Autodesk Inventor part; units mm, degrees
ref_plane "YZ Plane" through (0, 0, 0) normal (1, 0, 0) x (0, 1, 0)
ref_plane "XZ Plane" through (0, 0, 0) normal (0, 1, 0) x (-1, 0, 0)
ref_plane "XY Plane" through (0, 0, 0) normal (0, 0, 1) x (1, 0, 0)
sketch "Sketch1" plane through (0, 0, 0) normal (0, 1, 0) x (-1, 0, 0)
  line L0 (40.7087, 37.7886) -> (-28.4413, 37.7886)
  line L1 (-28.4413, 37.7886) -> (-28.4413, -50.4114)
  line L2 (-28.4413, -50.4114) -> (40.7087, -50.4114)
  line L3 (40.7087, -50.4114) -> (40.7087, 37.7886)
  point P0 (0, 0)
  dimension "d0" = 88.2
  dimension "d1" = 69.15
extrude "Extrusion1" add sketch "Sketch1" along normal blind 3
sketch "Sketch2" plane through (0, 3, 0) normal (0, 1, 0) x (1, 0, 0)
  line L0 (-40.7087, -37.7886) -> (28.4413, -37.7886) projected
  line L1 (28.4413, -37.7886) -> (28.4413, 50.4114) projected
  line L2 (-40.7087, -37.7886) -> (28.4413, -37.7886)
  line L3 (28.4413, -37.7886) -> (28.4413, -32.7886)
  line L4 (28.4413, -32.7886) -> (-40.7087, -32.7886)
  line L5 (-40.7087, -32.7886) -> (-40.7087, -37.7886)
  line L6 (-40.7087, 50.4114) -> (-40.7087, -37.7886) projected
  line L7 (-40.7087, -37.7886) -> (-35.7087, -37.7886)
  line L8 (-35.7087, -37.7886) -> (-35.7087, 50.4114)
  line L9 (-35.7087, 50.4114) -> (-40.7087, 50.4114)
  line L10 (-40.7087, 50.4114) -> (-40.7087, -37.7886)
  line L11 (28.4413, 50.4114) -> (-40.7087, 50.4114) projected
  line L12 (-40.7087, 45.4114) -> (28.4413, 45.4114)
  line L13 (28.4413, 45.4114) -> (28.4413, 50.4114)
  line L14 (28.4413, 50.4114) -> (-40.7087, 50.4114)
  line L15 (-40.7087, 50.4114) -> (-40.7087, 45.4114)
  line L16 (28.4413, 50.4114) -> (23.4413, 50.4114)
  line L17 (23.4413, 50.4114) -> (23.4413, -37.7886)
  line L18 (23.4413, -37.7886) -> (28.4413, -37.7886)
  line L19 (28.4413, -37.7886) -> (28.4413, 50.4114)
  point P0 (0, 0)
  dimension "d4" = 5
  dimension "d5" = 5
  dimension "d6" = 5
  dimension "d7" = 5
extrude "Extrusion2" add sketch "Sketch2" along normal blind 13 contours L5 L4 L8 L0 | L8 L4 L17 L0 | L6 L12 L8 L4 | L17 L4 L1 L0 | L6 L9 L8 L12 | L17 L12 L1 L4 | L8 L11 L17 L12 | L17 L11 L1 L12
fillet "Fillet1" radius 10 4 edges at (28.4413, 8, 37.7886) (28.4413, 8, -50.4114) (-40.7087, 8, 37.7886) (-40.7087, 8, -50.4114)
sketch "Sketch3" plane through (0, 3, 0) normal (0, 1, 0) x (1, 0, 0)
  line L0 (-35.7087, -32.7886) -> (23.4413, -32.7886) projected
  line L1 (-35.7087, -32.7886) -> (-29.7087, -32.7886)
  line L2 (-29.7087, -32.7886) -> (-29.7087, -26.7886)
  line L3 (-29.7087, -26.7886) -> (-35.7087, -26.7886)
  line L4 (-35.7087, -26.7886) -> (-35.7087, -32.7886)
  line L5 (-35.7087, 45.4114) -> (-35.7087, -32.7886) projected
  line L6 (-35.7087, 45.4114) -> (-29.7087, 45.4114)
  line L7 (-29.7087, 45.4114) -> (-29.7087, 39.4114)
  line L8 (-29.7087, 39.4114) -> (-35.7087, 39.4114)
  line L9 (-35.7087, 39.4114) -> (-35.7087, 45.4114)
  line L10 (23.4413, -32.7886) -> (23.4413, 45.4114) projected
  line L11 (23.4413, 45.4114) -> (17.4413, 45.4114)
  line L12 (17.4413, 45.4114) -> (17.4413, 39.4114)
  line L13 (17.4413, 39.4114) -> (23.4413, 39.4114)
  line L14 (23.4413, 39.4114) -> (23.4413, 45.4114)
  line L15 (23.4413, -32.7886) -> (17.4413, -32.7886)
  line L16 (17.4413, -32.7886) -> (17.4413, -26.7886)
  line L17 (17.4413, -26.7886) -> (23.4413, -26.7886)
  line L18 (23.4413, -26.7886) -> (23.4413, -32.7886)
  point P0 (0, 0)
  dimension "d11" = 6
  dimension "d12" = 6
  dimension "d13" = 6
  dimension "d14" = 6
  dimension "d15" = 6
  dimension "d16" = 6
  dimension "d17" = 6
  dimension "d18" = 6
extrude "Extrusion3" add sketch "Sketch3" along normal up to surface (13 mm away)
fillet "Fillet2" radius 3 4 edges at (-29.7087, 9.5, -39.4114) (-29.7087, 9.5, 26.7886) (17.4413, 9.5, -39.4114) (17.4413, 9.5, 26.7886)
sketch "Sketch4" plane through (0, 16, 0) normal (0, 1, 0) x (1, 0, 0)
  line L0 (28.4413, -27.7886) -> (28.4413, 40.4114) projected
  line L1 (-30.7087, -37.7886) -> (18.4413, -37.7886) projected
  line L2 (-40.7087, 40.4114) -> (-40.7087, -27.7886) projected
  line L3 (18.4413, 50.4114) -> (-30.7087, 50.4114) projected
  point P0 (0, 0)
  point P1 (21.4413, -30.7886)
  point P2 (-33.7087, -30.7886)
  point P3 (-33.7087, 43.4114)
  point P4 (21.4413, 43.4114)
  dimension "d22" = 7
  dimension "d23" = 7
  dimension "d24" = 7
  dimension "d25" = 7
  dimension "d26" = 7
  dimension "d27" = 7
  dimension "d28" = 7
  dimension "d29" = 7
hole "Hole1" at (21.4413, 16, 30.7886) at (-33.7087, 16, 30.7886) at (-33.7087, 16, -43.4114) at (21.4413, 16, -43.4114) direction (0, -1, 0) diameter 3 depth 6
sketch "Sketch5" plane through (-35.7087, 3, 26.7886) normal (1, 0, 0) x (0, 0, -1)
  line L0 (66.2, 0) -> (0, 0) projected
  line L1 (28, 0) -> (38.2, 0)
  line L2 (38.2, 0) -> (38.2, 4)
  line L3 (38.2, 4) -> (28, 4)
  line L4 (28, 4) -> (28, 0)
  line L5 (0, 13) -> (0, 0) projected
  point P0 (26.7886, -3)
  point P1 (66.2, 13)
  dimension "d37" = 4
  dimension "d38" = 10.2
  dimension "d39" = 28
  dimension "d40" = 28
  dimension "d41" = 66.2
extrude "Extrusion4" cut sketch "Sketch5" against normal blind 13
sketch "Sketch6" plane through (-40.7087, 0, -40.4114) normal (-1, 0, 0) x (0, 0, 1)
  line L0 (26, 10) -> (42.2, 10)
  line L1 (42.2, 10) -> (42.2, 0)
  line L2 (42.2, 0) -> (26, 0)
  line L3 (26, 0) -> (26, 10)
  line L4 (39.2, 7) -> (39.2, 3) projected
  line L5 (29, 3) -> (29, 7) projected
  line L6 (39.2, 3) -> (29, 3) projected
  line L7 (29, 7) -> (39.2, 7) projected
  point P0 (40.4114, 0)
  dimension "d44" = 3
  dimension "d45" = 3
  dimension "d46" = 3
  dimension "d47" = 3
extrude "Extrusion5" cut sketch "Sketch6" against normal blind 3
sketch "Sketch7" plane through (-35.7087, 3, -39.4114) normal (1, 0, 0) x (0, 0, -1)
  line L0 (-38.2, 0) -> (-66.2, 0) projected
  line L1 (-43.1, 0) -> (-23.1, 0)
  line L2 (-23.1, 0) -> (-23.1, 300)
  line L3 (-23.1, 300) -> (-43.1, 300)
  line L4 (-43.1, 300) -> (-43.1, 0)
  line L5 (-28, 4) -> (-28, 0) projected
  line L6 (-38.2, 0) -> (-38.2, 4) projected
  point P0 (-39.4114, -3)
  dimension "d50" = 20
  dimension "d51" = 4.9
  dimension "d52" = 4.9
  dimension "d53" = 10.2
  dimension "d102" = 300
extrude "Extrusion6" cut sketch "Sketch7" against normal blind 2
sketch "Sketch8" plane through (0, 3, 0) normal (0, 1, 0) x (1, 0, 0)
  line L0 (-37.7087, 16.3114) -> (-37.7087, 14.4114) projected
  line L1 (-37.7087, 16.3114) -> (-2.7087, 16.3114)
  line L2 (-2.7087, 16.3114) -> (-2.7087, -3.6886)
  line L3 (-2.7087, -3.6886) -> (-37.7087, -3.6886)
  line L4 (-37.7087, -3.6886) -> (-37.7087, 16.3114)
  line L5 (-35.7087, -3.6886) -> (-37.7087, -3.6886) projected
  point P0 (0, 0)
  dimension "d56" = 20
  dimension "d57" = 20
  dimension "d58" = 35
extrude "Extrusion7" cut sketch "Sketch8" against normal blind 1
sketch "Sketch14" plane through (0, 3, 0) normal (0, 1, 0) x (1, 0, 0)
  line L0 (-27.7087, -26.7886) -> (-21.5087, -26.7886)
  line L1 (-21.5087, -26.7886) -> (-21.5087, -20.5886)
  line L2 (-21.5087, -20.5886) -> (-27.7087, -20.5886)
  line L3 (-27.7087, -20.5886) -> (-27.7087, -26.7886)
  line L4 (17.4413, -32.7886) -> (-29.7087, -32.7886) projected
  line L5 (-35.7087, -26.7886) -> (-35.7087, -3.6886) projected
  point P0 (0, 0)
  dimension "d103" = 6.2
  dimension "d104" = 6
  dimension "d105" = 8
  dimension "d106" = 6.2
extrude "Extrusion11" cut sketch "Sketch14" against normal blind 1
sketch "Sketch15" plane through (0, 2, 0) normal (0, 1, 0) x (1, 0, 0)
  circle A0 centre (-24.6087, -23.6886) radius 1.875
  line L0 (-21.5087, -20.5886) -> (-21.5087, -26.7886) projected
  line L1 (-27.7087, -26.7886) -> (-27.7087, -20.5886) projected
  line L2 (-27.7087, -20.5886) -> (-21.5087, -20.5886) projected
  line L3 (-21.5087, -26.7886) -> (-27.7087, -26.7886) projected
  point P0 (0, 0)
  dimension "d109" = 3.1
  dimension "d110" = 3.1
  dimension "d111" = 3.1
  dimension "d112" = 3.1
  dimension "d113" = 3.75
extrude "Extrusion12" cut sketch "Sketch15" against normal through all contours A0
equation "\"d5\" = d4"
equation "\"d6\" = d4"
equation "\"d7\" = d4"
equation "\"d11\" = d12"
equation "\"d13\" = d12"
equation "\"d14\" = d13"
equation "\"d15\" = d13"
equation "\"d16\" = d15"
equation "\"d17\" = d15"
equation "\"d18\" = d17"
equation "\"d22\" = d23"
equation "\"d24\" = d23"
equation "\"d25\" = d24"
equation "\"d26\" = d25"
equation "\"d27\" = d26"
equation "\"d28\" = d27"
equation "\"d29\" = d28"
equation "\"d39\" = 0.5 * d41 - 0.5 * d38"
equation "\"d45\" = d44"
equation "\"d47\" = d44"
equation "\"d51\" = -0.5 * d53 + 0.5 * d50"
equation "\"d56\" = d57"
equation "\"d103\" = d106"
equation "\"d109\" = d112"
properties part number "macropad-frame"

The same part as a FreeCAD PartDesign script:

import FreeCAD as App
import Part
import Sketcher
from FreeCAD import Vector
Q = App.Units.Quantity


def edges_at(feature, points):
    """Names of the edges that pass closest to the given points."""
    edges = feature.Shape.Edges
    near = lambda p: min(range(len(edges)), key=lambda i: edges[i].distToShape(Part.Vertex(*p))[0])
    return sorted({f"Edge{near(p) + 1}" for p in points})


def add_polygon(sketch, points):
    """Adds a closed chain of lines whose ends are joined by coincident constraints."""
    first, n = sketch.GeometryCount, len(points)
    for a, b in zip(points, points[1:] + points[:1]):
        sketch.addGeometry(Part.LineSegment(App.Vector(*a, 0), App.Vector(*b, 0)), False)
    for i in range(n):
        sketch.addConstraint(Sketcher.Constraint("Coincident", first + i, 2, first + (i + 1) % n, 1))

doc = App.newDocument("Part")
body = doc.addObject("PartDesign::Body", "Body")

sketch1 = doc.addObject("Sketcher::SketchObject", "Sketch")
body.addObject(sketch1)
sketch1.AttachmentSupport = (doc.XZ_Plane, [""])
sketch1.MapMode = "FlatFace"
add_polygon(sketch1, [(-41, -50), (-41, 38), (28, 38), (28, -50)])
sketch1.addConstraint([
    Sketcher.Constraint("Vertical", 0),
    Sketcher.Constraint("Horizontal", 1),
    Sketcher.Constraint("Vertical", 2),
    Sketcher.Constraint("Horizontal", 3),
    Sketcher.Constraint("DistanceY", 0, 1, 0, 2, Q("88.2 mm")),
    Sketcher.Constraint("DistanceX", 1, 1, 1, 2, Q("69.15 mm")),
    Sketcher.Constraint("DistanceX", 0, 2, -1, 1, Q("40.7087 mm")),
    Sketcher.Constraint("DistanceY", -1, 1, 0, 2, Q("37.7886 mm")),
])
pad1 = doc.addObject("PartDesign::Pad", "Pad")
body.addObject(pad1)
pad1.Profile = sketch1
pad1.Length = 3
pad1.Reversed = True

sketch2 = doc.addObject("Sketcher::SketchObject", "Sketch001")
body.addObject(sketch2)
sketch2.AttachmentSupport = (doc.XZ_Plane, [""])
sketch2.MapMode = "FlatFace"
sketch2.AttachmentOffset = App.Placement(Vector(0, 0, -3), App.Rotation())
add_polygon(sketch2, [(-41, 38), (28, 38), (28, -50), (-41, -50)])
add_polygon(sketch2, [(-36, 33), (-36, -45), (23, -45), (23, 33)])
sketch2.addConstraint([
    Sketcher.Constraint("Horizontal", 0),
    Sketcher.Constraint("Vertical", 1),
    Sketcher.Constraint("Horizontal", 2),
    Sketcher.Constraint("Vertical", 3),
    Sketcher.Constraint("Vertical", 4),
    Sketcher.Constraint("Horizontal", 5),
    Sketcher.Constraint("Vertical", 6),
    Sketcher.Constraint("Horizontal", 7),
    Sketcher.Constraint("DistanceX", 2, 2, 4, 2, Q("5 mm")),
    Sketcher.Constraint("DistanceY", 2, 2, 4, 2, Q("5 mm")),
    Sketcher.Constraint("DistanceX", 5, 2, 1, 2, Q("5 mm")),
    Sketcher.Constraint("DistanceY", 6, 2, 0, 2, Q("5 mm")),
    Sketcher.Constraint("DistanceY", 1, 2, 1, 1, Q("88.2 mm")),
    Sketcher.Constraint("DistanceX", 0, 1, 0, 2, Q("69.15 mm")),
    Sketcher.Constraint("DistanceX", -1, 1, 0, 2, Q("28.4413 mm")),
    Sketcher.Constraint("DistanceY", -1, 1, 0, 2, Q("37.7886 mm")),
])
pad2 = doc.addObject("PartDesign::Pad", "Pad001")
body.addObject(pad2)
pad2.Profile = sketch2
pad2.Length = 13
pad2.Reversed = True
doc.recompute()

fillet = doc.addObject("PartDesign::Fillet", "Fillet")
body.addObject(fillet)
fillet.Base = (pad2, edges_at(pad2, [
    (28.441, 8, 37.789),
    (28.441, 8, -50.411),
    (-40.709, 8, 37.789),
    (-40.709, 8, -50.411),
]))
fillet.Radius = 10

sketch3 = doc.addObject("Sketcher::SketchObject", "Sketch002")
body.addObject(sketch3)
sketch3.AttachmentSupport = (doc.XZ_Plane, [""])
sketch3.MapMode = "FlatFace"
sketch3.AttachmentOffset = App.Placement(Vector(0, 0, -3), App.Rotation())
add_polygon(sketch3, [(-36, 27), (-36, 33), (-30, 33), (-30, 27)])
add_polygon(sketch3, [(-36, -45), (-36, -39), (-30, -39), (-30, -45)])
add_polygon(sketch3, [(17, -39), (23, -39), (23, -45), (17, -45)])
add_polygon(sketch3, [(17, 27), (17, 33), (23, 33), (23, 27)])
sketch3.addConstraint([
    Sketcher.Constraint("Vertical", 0),
    Sketcher.Constraint("Horizontal", 1),
    Sketcher.Constraint("Vertical", 2),
    Sketcher.Constraint("Horizontal", 3),
    Sketcher.Constraint("Vertical", 4),
    Sketcher.Constraint("Horizontal", 5),
    Sketcher.Constraint("Vertical", 6),
    Sketcher.Constraint("Horizontal", 7),
    Sketcher.Constraint("Horizontal", 8),
    Sketcher.Constraint("Vertical", 9),
    Sketcher.Constraint("Horizontal", 10),
    Sketcher.Constraint("Vertical", 11),
    Sketcher.Constraint("Vertical", 12),
    Sketcher.Constraint("Horizontal", 13),
    Sketcher.Constraint("Vertical", 14),
    Sketcher.Constraint("Horizontal", 15),
    Sketcher.Constraint("Horizontal", 5, 2, 8, 2),
    Sketcher.Constraint("Horizontal", 7, 2, 9, 2),
    Sketcher.Constraint("Horizontal", 1, 2, 12, 2),
    Sketcher.Constraint("Horizontal", 3, 2, 14, 2),
    Sketcher.Constraint("Vertical", 3, 2, 4, 2),
    Sketcher.Constraint("Vertical", 2, 2, 5, 2),
    Sketcher.Constraint("Vertical", 11, 2, 12, 2),
    Sketcher.Constraint("Vertical", 9, 2, 13, 2),
    Sketcher.Constraint("Equal", 7, 8),
    Sketcher.Constraint("Equal", 15, 0),
    Sketcher.Constraint("Equal", 2, 4),
    Sketcher.Constraint("DistanceX", 1, 1, 1, 2, Q("6 mm")),
    Sketcher.Constraint("DistanceY", 4, 2, 3, 2, Q("66.2 mm")),
    Sketcher.Constraint("DistanceX", 5, 2, 8, 2, Q("53.15 mm")),
    Sketcher.Constraint("DistanceX", 0, 2, -1, 1, Q("35.7087 mm")),
    Sketcher.Constraint("DistanceY", -1, 1, 0, 2, Q("32.7886 mm")),
])
pad3 = doc.addObject("PartDesign::Pad", "Pad002")
body.addObject(pad3)
pad3.Profile = sketch3
pad3.Length = 13
pad3.Reversed = True
doc.recompute()

fillet2 = doc.addObject("PartDesign::Fillet", "Fillet001")
body.addObject(fillet2)
fillet2.Base = (pad3, edges_at(pad3, [
    (-29.709, 9.5, -39.411),
    (-29.709, 9.5, 26.789),
    (17.441, 9.5, -39.411),
    (17.441, 9.5, 26.789),
]))
fillet2.Radius = 3

sketch4 = doc.addObject("Sketcher::SketchObject", "Sketch003")
body.addObject(sketch4)
sketch4.AttachmentSupport = (doc.XZ_Plane, [""])
sketch4.MapMode = "FlatFace"
sketch4.AttachmentOffset = App.Placement(Vector(0, 0, -16), App.Rotation())
sketch4.addGeometry([
    Part.Circle(Vector(21.4, 30.8, 0), Vector(0, 0, 1), 1.5),
    Part.Circle(Vector(-33.7, 30.8, 0), Vector(0, 0, 1), 1.5),
    Part.Circle(Vector(-33.7, -43.4, 0), Vector(0, 0, 1), 1.5),
    Part.Circle(Vector(21.4, -43.4, 0), Vector(0, 0, 1), 1.5),
], False)
sketch4.addConstraint([
    Sketcher.Constraint("Equal", 0, 1),
    Sketcher.Constraint("Equal", 1, 2),
    Sketcher.Constraint("Equal", 2, 3),
    Sketcher.Constraint("Horizontal", 0, 3, 1, 3),
    Sketcher.Constraint("Horizontal", 2, 3, 3, 3),
    Sketcher.Constraint("Vertical", 1, 3, 2, 3),
    Sketcher.Constraint("Vertical", 0, 3, 3, 3),
    Sketcher.Constraint("Diameter", 0, Q("3 mm")),
    Sketcher.Constraint("DistanceY", 2, 3, 1, 3, Q("74.2 mm")),
    Sketcher.Constraint("DistanceX", 1, 3, 0, 3, Q("55.15 mm")),
    Sketcher.Constraint("DistanceX", -1, 1, 0, 3, Q("21.4413 mm")),
    Sketcher.Constraint("DistanceY", -1, 1, 0, 3, Q("30.7886 mm")),
])
doc.recompute()
hole = doc.addObject("PartDesign::Hole", "Hole")
body.addObject(hole)
hole.Profile = sketch4
hole.ThreadType = "None"
hole.Diameter = 3
hole.DepthType = "Dimension"
hole.Depth = 6
hole.DrillPoint = "Flat"
hole.Reversed = True

sketch5 = doc.addObject("Sketcher::SketchObject", "Sketch004")
body.addObject(sketch5)
sketch5.AttachmentSupport = (doc.YZ_Plane, [""])
sketch5.MapMode = "FlatFace"
sketch5.AttachmentOffset = App.Placement(Vector(0, 0, -35.7087), App.Rotation())
add_polygon(sketch5, [(3, -1.2), (3, -11.4), (7, -11.4), (7, -1.2)])
sketch5.addConstraint([
    Sketcher.Constraint("Vertical", 0),
    Sketcher.Constraint("Horizontal", 1),
    Sketcher.Constraint("Vertical", 2),
    Sketcher.Constraint("Horizontal", 3),
    Sketcher.Constraint("DistanceX", 1, 1, 1, 2, Q("4 mm")),
    Sketcher.Constraint("DistanceY", 0, 2, 0, 1, Q("10.2 mm")),
    Sketcher.Constraint("DistanceX", -1, 1, 0, 2, Q("3 mm")),
    Sketcher.Constraint("DistanceY", 0, 2, -1, 1, Q("11.4114 mm")),
])
pocket1 = doc.addObject("PartDesign::Pocket", "Pocket")
body.addObject(pocket1)
pocket1.Profile = sketch5
pocket1.Length = 13

sketch6 = doc.addObject("Sketcher::SketchObject", "Sketch005")
body.addObject(sketch6)
sketch6.AttachmentSupport = (doc.YZ_Plane, [""])
sketch6.MapMode = "FlatFace"
sketch6.AttachmentOffset = App.Placement(Vector(0, 0, -40.7087), App.Rotation())
add_polygon(sketch6, [(10, 1.8), (10, -14.4), (0, -14.4), (0, 1.8)])
add_polygon(sketch6, [(7, -11.4), (7, -1.2), (3, -1.2), (3, -11.4)])
sketch6.addConstraint([
    Sketcher.Constraint("Vertical", 0),
    Sketcher.Constraint("Horizontal", 1),
    Sketcher.Constraint("Vertical", 2),
    Sketcher.Constraint("Horizontal", 3),
    Sketcher.Constraint("Vertical", 4),
    Sketcher.Constraint("Horizontal", 5),
    Sketcher.Constraint("Vertical", 6),
    Sketcher.Constraint("Horizontal", 7),
    Sketcher.Constraint("PointOnObject", 1, 2, -2),
    Sketcher.Constraint("DistanceX", -1, 1, 5, 2, Q("3 mm")),
    Sketcher.Constraint("DistanceX", 4, 2, 3, 2, Q("3 mm")),
    Sketcher.Constraint("DistanceY", 4, 2, 3, 2, Q("3 mm")),
    Sketcher.Constraint("DistanceY", 1, 2, 6, 2, Q("3 mm")),
    Sketcher.Constraint("DistanceX", 1, 2, 1, 1, Q("10 mm")),
    Sketcher.Constraint("DistanceY", 0, 2, 0, 1, Q("16.2 mm")),
    Sketcher.Constraint("DistanceY", 0, 2, -1, 1, Q("14.4114 mm")),
])
pocket2 = doc.addObject("PartDesign::Pocket", "Pocket001")
body.addObject(pocket2)
pocket2.Profile = sketch6
pocket2.Length = 3
pocket2.Reversed = True

sketch7 = doc.addObject("Sketcher::SketchObject", "Sketch006")
body.addObject(sketch7)
sketch7.AttachmentSupport = (doc.YZ_Plane, [""])
sketch7.MapMode = "FlatFace"
sketch7.AttachmentOffset = App.Placement(Vector(0, 0, -35.7087), App.Rotation())
add_polygon(sketch7, [(3, 4), (3, -16), (303, -16), (303, 4)])
sketch7.addConstraint([
    Sketcher.Constraint("Vertical", 0),
    Sketcher.Constraint("Horizontal", 1),
    Sketcher.Constraint("Vertical", 2),
    Sketcher.Constraint("Horizontal", 3),
    Sketcher.Constraint("DistanceX", 1, 1, 1, 2, Q("300 mm")),
    Sketcher.Constraint("DistanceY", 0, 2, 0, 1, Q("20 mm")),
    Sketcher.Constraint("DistanceX", -1, 1, 0, 2, Q("3 mm")),
    Sketcher.Constraint("DistanceY", 0, 2, -1, 1, Q("16.3114 mm")),
])
pocket3 = doc.addObject("PartDesign::Pocket", "Pocket002")
body.addObject(pocket3)
pocket3.Profile = sketch7
pocket3.Length = 2

sketch8 = doc.addObject("Sketcher::SketchObject", "Sketch007")
body.addObject(sketch8)
sketch8.AttachmentSupport = (doc.XZ_Plane, [""])
sketch8.MapMode = "FlatFace"
sketch8.AttachmentOffset = App.Placement(Vector(0, 0, -3), App.Rotation())
add_polygon(sketch8, [(-3, -16), (-38, -16), (-38, 4), (-3, 4)])
sketch8.addConstraint([
    Sketcher.Constraint("Horizontal", 0),
    Sketcher.Constraint("Vertical", 1),
    Sketcher.Constraint("Horizontal", 2),
    Sketcher.Constraint("Vertical", 3),
    Sketcher.Constraint("DistanceX", 0, 2, 0, 1, Q("35 mm")),
    Sketcher.Constraint("DistanceY", 1, 1, 1, 2, Q("20 mm")),
    Sketcher.Constraint("DistanceX", 0, 2, -1, 1, Q("37.7087 mm")),
    Sketcher.Constraint("DistanceY", 0, 2, -1, 1, Q("16.3114 mm")),
])
pocket4 = doc.addObject("PartDesign::Pocket", "Pocket003")
body.addObject(pocket4)
pocket4.Profile = sketch8
pocket4.Length = 1
pocket4.Reversed = True

sketch9 = doc.addObject("Sketcher::SketchObject", "Sketch008")
body.addObject(sketch9)
sketch9.AttachmentSupport = (doc.XZ_Plane, [""])
sketch9.MapMode = "FlatFace"
sketch9.AttachmentOffset = App.Placement(Vector(0, 0, -3), App.Rotation())
add_polygon(sketch9, [(-28, 21), (-28, 27), (-22, 27), (-22, 21)])
sketch9.addConstraint([
    Sketcher.Constraint("Vertical", 0),
    Sketcher.Constraint("Horizontal", 1),
    Sketcher.Constraint("Vertical", 2),
    Sketcher.Constraint("Horizontal", 3),
    Sketcher.Constraint("Equal", 3, 0),
    Sketcher.Constraint("DistanceX", 1, 1, 1, 2, Q("6.2 mm")),
    Sketcher.Constraint("DistanceX", 0, 2, -1, 1, Q("27.7087 mm")),
    Sketcher.Constraint("DistanceY", -1, 1, 0, 2, Q("26.7886 mm")),
])
pocket5 = doc.addObject("PartDesign::Pocket", "Pocket004")
body.addObject(pocket5)
pocket5.Profile = sketch9
pocket5.Length = 1
pocket5.Reversed = True

sketch10 = doc.addObject("Sketcher::SketchObject", "Sketch009")
body.addObject(sketch10)
sketch10.AttachmentSupport = (doc.XZ_Plane, [""])
sketch10.MapMode = "FlatFace"
sketch10.AttachmentOffset = App.Placement(Vector(0, 0, -2), App.Rotation())
sketch10.addGeometry(Part.Circle(Vector(-24.6, 23.7, 0), Vector(0, 0, 1), 1.9), False)
sketch10.addConstraint([
    Sketcher.Constraint("Diameter", 0, Q("3.75 mm")),
    Sketcher.Constraint("DistanceX", 0, 3, -1, 1, Q("24.6087 mm")),
    Sketcher.Constraint("DistanceY", -1, 1, 0, 3, Q("23.6886 mm")),
])
pocket6 = doc.addObject("PartDesign::Pocket", "Pocket005")
body.addObject(pocket6)
pocket6.Profile = sketch10
pocket6.Type = "ThroughAll"
pocket6.Reversed = True

doc.recompute()
